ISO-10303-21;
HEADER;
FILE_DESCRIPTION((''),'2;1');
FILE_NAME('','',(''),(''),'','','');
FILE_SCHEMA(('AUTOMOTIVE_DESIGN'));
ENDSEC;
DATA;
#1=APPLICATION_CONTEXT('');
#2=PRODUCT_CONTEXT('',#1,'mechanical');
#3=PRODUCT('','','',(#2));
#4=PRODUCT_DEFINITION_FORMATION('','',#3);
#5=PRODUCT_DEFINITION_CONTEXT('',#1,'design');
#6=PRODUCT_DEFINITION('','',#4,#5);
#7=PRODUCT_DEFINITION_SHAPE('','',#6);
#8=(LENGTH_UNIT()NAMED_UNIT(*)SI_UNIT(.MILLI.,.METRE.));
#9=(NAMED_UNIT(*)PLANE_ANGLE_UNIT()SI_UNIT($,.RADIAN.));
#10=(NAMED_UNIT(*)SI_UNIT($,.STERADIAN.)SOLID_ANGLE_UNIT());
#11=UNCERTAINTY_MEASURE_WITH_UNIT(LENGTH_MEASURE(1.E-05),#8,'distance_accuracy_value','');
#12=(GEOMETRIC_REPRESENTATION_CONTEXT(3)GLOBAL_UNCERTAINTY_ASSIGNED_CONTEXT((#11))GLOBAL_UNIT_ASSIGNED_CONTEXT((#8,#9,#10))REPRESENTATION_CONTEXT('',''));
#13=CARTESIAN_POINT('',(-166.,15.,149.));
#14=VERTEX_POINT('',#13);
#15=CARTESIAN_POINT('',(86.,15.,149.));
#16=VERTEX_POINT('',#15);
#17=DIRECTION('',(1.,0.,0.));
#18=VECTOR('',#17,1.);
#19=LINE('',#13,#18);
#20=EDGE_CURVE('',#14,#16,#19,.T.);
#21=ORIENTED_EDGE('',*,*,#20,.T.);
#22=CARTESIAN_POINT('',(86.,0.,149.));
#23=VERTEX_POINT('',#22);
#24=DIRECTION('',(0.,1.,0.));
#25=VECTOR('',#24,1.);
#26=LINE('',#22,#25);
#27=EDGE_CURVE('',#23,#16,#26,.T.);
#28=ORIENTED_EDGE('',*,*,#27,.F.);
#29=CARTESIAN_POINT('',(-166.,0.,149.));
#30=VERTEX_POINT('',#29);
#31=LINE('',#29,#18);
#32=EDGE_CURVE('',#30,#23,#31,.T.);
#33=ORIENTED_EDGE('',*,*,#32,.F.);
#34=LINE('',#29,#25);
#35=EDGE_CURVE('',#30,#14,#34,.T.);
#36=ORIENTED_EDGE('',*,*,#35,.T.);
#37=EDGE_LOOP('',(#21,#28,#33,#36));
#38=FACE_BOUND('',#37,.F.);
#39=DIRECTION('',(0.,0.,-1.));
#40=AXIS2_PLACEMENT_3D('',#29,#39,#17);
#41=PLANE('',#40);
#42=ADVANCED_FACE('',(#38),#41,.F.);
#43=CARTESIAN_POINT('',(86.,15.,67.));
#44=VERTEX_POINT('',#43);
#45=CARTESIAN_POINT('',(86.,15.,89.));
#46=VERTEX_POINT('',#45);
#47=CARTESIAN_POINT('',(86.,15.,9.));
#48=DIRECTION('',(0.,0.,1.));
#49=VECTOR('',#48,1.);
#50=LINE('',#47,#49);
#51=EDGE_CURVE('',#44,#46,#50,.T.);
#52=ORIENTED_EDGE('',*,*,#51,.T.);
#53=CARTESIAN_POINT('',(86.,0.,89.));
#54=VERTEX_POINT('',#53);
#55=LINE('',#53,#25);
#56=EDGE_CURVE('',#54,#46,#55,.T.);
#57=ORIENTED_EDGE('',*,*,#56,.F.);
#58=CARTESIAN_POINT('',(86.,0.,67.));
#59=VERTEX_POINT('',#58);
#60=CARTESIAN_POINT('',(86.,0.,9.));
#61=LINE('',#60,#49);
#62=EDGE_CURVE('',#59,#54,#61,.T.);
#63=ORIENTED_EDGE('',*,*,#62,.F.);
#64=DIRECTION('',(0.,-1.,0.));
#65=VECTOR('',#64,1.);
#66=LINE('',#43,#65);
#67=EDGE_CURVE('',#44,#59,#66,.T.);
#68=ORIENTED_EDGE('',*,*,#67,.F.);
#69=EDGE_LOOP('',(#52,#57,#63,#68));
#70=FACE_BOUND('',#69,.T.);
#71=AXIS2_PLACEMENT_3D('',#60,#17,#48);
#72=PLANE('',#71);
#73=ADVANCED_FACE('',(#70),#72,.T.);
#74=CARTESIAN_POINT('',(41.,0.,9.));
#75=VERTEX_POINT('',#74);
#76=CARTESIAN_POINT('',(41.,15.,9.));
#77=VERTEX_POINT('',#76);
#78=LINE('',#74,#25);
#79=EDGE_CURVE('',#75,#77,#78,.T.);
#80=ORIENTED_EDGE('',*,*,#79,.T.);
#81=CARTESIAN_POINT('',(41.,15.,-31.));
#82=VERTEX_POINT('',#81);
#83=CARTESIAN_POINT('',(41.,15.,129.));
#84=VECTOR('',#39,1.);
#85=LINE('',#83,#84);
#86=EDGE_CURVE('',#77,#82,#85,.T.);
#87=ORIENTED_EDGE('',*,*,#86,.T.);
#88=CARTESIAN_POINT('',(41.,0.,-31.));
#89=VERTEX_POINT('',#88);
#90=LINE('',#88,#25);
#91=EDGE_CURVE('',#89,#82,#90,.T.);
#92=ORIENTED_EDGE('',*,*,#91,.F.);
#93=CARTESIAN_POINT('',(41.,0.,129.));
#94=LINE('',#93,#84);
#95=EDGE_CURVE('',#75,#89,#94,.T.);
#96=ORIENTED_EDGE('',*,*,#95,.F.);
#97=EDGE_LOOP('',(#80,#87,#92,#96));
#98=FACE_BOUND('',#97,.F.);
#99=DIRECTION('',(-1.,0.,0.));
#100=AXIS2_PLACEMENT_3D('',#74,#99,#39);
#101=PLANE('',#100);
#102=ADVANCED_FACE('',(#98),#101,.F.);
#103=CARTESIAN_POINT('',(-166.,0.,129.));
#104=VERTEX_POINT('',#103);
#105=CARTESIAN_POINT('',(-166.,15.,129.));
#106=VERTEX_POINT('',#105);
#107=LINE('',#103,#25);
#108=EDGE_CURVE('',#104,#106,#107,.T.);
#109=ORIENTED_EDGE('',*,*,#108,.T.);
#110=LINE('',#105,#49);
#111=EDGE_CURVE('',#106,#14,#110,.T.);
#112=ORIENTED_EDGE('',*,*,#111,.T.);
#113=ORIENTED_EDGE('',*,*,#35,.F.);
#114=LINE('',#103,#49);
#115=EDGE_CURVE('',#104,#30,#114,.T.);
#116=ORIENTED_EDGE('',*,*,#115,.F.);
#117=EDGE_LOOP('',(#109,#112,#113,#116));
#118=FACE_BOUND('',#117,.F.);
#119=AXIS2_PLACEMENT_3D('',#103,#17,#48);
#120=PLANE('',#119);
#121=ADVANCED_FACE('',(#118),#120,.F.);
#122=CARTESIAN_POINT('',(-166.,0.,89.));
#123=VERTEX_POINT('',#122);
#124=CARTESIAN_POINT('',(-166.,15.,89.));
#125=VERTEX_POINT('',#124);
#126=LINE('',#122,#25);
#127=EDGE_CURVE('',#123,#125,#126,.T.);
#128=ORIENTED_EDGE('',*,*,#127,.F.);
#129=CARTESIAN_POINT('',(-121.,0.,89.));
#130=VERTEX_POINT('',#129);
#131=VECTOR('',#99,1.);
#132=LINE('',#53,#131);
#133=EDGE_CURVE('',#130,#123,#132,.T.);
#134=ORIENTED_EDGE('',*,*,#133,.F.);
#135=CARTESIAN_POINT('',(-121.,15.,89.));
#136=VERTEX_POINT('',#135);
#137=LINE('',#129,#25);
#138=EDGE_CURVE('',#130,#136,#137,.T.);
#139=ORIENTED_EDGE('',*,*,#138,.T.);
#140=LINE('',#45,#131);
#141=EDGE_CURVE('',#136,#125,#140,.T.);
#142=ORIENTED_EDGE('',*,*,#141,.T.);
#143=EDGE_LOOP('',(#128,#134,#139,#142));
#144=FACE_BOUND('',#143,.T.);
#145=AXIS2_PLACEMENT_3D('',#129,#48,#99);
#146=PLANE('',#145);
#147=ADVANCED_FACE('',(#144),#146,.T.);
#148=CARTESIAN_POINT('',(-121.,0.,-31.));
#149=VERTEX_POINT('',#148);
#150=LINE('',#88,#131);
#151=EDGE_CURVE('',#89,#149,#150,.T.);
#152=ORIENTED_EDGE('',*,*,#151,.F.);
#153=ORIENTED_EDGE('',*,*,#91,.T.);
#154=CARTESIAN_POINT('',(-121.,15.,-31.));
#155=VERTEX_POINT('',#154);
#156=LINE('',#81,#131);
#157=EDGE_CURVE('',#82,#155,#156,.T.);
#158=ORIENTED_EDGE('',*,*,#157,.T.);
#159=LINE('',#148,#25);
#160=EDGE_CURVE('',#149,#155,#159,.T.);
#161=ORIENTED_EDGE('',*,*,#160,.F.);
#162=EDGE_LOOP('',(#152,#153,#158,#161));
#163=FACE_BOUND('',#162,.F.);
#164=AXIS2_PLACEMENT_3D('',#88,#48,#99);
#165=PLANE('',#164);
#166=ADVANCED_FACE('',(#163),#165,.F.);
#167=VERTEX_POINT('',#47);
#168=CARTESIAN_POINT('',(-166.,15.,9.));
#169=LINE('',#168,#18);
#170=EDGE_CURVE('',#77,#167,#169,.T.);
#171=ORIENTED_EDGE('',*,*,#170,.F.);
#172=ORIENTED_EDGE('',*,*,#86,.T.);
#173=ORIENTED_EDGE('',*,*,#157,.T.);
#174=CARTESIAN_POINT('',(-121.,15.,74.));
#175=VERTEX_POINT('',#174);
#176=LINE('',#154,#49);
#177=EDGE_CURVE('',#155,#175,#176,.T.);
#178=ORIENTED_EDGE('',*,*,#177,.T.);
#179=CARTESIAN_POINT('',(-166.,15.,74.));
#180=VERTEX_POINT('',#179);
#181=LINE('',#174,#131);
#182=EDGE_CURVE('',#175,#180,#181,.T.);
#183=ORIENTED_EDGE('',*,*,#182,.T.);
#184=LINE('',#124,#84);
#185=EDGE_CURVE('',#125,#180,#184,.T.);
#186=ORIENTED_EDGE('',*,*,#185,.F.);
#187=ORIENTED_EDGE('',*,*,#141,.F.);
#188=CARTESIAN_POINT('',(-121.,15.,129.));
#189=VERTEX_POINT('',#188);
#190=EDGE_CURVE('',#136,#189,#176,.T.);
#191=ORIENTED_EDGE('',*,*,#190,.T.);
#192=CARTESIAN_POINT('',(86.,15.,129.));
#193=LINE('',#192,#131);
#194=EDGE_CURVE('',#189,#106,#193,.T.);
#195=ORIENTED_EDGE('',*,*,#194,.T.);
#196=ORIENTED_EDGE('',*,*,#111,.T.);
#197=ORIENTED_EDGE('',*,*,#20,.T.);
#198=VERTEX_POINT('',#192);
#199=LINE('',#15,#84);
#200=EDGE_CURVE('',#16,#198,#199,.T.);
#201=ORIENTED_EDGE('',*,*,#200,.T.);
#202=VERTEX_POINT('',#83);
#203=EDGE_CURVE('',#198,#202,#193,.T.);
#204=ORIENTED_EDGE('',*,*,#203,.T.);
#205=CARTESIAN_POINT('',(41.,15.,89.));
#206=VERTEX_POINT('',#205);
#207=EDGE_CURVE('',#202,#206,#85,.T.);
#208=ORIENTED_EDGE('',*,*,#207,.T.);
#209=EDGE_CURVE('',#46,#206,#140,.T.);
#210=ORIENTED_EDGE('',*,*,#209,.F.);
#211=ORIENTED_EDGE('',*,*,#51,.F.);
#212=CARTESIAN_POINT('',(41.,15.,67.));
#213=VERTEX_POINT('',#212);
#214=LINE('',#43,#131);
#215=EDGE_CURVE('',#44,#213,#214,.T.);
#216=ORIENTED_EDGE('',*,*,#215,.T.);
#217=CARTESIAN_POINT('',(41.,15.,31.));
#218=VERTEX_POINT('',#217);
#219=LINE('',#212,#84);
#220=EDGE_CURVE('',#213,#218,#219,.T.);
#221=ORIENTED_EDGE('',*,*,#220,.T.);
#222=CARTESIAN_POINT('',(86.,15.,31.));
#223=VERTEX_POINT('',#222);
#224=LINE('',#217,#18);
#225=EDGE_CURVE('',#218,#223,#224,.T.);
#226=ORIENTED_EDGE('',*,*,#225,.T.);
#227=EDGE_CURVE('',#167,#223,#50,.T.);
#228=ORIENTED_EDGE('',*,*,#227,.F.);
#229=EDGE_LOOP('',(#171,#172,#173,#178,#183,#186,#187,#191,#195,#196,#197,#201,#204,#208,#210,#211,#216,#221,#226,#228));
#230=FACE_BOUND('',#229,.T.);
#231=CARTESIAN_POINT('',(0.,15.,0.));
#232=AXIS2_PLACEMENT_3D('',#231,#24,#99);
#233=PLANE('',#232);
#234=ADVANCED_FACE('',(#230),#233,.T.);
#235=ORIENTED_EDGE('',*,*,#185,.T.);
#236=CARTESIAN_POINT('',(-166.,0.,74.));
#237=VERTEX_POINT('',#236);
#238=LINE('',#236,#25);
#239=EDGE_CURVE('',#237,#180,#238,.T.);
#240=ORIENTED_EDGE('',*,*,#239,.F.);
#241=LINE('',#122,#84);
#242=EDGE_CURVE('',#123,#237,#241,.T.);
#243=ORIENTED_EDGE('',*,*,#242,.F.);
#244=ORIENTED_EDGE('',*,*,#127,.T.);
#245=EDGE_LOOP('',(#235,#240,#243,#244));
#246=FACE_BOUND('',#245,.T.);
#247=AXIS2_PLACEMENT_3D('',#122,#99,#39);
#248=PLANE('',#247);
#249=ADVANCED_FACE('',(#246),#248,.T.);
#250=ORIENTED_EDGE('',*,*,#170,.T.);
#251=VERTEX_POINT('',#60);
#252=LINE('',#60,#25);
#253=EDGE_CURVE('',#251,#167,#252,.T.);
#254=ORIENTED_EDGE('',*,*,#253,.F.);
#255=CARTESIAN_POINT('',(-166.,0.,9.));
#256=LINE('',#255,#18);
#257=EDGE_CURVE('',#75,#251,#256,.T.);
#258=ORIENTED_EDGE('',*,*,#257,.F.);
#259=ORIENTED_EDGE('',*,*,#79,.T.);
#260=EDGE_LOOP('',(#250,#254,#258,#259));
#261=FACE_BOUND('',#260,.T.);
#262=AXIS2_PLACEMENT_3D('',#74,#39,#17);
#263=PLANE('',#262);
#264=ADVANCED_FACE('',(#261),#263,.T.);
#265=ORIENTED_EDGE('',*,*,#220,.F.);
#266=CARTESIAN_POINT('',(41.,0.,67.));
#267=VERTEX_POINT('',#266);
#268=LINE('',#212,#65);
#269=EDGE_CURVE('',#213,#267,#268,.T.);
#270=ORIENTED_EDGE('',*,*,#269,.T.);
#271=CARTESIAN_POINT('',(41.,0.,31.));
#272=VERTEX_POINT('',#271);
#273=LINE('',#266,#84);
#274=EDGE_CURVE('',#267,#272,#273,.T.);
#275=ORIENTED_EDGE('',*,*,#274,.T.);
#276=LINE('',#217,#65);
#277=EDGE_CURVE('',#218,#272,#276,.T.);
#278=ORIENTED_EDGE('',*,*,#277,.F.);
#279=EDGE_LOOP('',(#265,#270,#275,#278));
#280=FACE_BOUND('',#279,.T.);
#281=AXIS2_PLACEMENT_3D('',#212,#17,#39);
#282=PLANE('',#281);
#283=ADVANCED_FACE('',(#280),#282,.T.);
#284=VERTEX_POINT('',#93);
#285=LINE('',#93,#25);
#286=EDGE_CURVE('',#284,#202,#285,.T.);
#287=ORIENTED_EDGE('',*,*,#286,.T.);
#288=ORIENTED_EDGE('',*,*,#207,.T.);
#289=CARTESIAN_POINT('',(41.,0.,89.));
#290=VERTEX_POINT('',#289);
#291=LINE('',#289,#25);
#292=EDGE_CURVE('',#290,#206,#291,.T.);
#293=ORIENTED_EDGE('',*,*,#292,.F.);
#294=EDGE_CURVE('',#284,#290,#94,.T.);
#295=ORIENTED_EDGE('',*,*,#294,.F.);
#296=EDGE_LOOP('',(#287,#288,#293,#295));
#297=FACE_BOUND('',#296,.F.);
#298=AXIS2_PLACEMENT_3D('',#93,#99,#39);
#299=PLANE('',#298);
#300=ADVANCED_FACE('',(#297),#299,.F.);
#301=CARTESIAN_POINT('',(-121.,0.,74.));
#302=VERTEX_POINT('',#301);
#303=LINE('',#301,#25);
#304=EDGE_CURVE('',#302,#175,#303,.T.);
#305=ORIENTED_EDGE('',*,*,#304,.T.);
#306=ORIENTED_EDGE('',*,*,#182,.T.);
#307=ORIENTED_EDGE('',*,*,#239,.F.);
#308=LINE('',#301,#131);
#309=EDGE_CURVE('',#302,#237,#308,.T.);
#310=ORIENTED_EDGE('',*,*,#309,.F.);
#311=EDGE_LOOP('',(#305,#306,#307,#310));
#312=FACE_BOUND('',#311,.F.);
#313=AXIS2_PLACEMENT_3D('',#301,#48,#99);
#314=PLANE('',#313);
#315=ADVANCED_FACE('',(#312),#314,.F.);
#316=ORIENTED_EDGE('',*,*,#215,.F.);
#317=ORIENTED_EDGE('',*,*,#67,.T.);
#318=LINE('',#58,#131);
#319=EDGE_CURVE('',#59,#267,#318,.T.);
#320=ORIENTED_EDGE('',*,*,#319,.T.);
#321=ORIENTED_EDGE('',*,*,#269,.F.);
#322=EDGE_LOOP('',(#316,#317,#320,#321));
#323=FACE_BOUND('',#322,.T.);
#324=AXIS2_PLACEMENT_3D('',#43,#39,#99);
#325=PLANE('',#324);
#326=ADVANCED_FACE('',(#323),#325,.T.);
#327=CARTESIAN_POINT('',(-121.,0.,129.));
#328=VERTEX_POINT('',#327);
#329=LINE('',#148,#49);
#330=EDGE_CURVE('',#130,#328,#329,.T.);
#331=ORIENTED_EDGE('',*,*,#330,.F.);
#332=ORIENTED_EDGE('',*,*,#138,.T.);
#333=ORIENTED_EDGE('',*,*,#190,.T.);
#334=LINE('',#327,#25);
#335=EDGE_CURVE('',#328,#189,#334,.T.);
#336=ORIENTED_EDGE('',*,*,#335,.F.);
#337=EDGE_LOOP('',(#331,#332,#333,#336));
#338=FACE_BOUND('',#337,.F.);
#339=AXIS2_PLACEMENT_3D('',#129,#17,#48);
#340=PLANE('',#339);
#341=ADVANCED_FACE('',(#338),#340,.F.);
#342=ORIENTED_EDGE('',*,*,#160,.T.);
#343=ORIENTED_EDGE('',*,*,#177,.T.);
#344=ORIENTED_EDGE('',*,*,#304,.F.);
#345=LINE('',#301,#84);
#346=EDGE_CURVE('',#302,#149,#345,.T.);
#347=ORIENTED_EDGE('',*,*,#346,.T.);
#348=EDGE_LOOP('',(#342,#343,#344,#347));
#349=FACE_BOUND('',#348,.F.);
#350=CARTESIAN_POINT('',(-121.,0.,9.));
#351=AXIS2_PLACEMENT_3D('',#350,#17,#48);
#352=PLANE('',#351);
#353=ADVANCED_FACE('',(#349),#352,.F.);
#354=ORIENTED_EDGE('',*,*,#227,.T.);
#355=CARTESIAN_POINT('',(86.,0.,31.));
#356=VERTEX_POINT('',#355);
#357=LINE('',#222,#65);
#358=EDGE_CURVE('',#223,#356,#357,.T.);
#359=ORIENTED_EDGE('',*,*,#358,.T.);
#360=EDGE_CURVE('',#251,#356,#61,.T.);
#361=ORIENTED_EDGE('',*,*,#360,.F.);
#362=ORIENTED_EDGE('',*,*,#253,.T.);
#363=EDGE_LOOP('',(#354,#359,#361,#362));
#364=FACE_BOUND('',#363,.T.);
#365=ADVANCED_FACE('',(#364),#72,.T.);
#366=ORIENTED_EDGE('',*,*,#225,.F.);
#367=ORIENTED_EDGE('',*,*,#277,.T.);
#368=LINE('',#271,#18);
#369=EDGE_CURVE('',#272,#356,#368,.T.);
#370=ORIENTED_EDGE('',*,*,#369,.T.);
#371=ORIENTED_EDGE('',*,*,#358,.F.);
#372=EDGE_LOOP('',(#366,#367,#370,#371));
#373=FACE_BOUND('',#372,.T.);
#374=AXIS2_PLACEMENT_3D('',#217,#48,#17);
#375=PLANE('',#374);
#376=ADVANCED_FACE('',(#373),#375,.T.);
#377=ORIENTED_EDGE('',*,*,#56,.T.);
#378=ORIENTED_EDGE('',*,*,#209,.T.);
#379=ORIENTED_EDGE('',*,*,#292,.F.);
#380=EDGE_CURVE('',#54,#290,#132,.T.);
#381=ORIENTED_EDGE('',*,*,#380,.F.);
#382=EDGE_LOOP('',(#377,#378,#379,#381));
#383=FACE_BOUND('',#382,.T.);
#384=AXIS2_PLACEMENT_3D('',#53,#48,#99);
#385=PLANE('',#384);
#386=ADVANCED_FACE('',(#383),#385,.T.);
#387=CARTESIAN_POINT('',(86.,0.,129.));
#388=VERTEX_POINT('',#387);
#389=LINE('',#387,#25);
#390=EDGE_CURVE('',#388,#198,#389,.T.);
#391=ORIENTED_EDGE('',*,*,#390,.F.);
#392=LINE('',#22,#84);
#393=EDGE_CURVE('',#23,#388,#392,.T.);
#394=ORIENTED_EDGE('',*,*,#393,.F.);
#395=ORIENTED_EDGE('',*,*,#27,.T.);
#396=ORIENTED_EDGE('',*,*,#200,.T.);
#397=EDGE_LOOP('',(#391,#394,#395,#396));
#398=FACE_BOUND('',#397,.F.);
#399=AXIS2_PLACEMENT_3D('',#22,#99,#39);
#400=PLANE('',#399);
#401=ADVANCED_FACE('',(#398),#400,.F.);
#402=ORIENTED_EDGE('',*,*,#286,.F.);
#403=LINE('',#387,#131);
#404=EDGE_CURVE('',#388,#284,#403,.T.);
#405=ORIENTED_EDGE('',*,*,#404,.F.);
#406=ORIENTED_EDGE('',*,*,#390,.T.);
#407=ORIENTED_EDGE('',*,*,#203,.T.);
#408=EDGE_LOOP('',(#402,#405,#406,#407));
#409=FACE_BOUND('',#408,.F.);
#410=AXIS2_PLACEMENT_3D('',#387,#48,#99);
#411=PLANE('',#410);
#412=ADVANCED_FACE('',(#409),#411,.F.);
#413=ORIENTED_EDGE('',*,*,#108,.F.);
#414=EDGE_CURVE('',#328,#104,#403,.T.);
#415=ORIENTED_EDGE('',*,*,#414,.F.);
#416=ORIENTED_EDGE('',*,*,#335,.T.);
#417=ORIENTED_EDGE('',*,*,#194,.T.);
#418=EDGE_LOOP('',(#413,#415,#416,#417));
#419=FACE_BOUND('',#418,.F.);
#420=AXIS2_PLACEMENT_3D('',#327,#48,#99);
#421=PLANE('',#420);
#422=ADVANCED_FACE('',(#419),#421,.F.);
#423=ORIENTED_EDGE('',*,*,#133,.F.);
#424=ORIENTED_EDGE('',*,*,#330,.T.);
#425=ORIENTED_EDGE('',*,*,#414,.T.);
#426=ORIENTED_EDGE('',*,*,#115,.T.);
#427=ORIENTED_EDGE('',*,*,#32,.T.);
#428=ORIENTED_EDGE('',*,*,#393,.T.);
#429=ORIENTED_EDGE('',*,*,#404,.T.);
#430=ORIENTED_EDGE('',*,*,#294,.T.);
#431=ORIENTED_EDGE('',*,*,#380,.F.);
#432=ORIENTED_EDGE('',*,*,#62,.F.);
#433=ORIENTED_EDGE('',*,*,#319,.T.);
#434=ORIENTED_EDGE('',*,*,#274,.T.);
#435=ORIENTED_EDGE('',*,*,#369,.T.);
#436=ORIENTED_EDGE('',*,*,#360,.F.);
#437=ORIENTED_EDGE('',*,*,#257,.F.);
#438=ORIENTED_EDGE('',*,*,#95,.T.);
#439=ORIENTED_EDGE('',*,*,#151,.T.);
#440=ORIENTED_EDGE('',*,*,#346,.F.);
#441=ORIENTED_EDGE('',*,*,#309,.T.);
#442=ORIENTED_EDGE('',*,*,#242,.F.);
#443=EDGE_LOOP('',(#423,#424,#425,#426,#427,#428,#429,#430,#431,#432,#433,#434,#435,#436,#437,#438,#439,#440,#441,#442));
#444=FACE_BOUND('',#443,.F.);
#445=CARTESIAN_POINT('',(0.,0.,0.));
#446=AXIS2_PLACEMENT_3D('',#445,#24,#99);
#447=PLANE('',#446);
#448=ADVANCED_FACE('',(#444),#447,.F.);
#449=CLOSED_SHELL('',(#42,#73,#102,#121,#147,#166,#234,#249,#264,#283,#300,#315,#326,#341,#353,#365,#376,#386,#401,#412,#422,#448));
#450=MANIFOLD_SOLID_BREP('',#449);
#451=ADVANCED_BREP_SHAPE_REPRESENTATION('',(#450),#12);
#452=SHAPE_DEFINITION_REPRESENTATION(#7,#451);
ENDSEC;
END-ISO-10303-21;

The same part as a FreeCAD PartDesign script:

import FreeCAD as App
import Part
import Sketcher
from FreeCAD import Vector


def add_polygon(sketch, points):
    """Adds a closed chain of lines whose ends are joined by coincident constraints."""
    first, n = sketch.GeometryCount, len(points)
    for a, b in zip(points, points[1:] + points[:1]):
        sketch.addGeometry(Part.LineSegment(App.Vector(*a, 0), App.Vector(*b, 0)), False)
    for i in range(n):
        sketch.addConstraint(Sketcher.Constraint("Coincident", first + i, 2, first + (i + 1) % n, 1))

doc = App.newDocument("Part")
body = doc.addObject("PartDesign::Body", "Body")

# Sketch on XZ plane
sketch1 = body.newObject("Sketcher::SketchObject", "Sketch")
sketch1.AttachmentSupport = (doc.getObject("XZ_Plane"), [""])
sketch1.MapMode = "FlatFace"
add_polygon(sketch1, [(-121, 89), (-121, 129), (-166, 129), (-166, 149), (86, 149), (86, 129), (41, 129), (41, 89), (86, 89), (86, 9), (41, 9), (41, -31), (-121, -31), (-121, 74), (-166, 74), (-166, 89)])  # lines 0-15
sketch1.addConstraint([
    Sketcher.Constraint("Vertical", 0),
    Sketcher.Constraint("Horizontal", 1),
    Sketcher.Constraint("Vertical", 2),
    Sketcher.Constraint("Horizontal", 3),
    Sketcher.Constraint("Vertical", 4),
    Sketcher.Constraint("Horizontal", 5),
    Sketcher.Constraint("Vertical", 6),
    Sketcher.Constraint("Horizontal", 7),
    Sketcher.Constraint("Vertical", 8),
    Sketcher.Constraint("Horizontal", 9),
    Sketcher.Constraint("Vertical", 10),
    Sketcher.Constraint("Horizontal", 11),
    Sketcher.Constraint("Vertical", 12),
    Sketcher.Constraint("Horizontal", 13),
    Sketcher.Constraint("Vertical", 14),
    Sketcher.Constraint("Horizontal", 15),
    Sketcher.Constraint("Horizontal", 1, 2, 4, 2),
    Sketcher.Constraint("Horizontal", 7, 2, 14, 2),
    Sketcher.Constraint("Vertical", 4, 2, 7, 2),
    Sketcher.Constraint("Vertical", 6, 2, 9, 2),
    Sketcher.Constraint("Vertical", 0, 2, 11, 2),
    Sketcher.Constraint("Vertical", 2, 2, 13, 2),
    Sketcher.Constraint("Equal", 1, 5),
    Sketcher.Constraint("Equal", 6, 10),
    Sketcher.Constraint("DistanceX", 1, 2, 1, 1, 45.0),
    Sketcher.Constraint("DistanceX", 11, 2, 11, 1, 162.0),
    Sketcher.Constraint("DistanceY", 0, 1, 0, 2, 40.0),
    Sketcher.Constraint("DistanceY", 2, 1, 2, 2, 20.0),
    Sketcher.Constraint("DistanceY", 14, 1, 14, 2, 15.0),
    Sketcher.Constraint("DistanceY", 10, 2, 5, 2, 160.0),
    Sketcher.Constraint("DistanceX", 0, 2, -1, 1, 121.0),
    Sketcher.Constraint("DistanceY", -1, 1, 0, 2, 129.0),
])
pad1 = body.newObject("PartDesign::Pad", "Pad")
pad1.Profile = sketch1
pad1.Length = 15
pad1.Reversed = True

# Sketch on XZ plane
sketch2 = body.newObject("Sketcher::SketchObject", "Sketch001")
sketch2.AttachmentSupport = (doc.getObject("XZ_Plane"), [""])
sketch2.MapMode = "FlatFace"
sketch2.AttachmentOffset = App.Placement(Vector(0, 0, -15), App.Rotation())
add_polygon(sketch2, [(41, 67), (86, 67), (86, 31), (41, 31)])  # lines 0-3
add_polygon(sketch2, [(-121, 67), (-121, 31), (-166, 31), (-166, 67)])  # lines 4-7
sketch2.addConstraint([
    Sketcher.Constraint("Horizontal", 0),
    Sketcher.Constraint("Vertical", 1),
    Sketcher.Constraint("Horizontal", 2),
    Sketcher.Constraint("Vertical", 3),
    Sketcher.Constraint("Vertical", 4),
    Sketcher.Constraint("Horizontal", 5),
    Sketcher.Constraint("Vertical", 6),
    Sketcher.Constraint("Horizontal", 7),
    Sketcher.Constraint("Horizontal", 2, 2, 4, 2),
    Sketcher.Constraint("Horizontal", 3, 2, 6, 2),
    Sketcher.Constraint("Equal", 2, 5),
    Sketcher.Constraint("DistanceX", 0, 1, 0, 2, 45.0),
    Sketcher.Constraint("DistanceY", 1, 2, 1, 1, 36.0),
    Sketcher.Constraint("DistanceX", -1, 1, 0, 2, 86.0),
    Sketcher.Constraint("DistanceY", -1, 1, 0, 2, 67.0),
    Sketcher.Constraint("DistanceX", 4, 2, -1, 1, 121.0),
])
pocket1 = body.newObject("PartDesign::Pocket", "Pocket")
pocket1.Profile = sketch2
pocket1.Length = 15
pocket1.Reversed = True

doc.recompute()
